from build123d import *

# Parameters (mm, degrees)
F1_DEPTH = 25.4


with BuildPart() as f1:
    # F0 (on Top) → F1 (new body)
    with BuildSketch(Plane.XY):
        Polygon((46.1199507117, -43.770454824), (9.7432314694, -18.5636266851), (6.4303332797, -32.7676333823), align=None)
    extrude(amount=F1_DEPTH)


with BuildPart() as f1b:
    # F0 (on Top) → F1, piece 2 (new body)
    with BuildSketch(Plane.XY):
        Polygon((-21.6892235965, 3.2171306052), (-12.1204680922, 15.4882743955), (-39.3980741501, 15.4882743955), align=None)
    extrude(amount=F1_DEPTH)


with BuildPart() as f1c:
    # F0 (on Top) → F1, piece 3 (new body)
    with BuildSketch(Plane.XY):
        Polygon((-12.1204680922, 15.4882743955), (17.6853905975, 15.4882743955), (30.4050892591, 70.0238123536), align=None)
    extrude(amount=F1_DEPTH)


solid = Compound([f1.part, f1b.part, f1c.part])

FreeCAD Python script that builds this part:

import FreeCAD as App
import Part
import Sketcher

V = App.Vector
Q = App.Units.Quantity


def add_polygon(sketch, points):
    """Adds a closed chain of lines whose ends are joined by coincident constraints."""
    first, n = sketch.GeometryCount, len(points)
    for a, b in zip(points, points[1:] + points[:1]):
        sketch.addGeometry(Part.LineSegment(App.Vector(*a, 0), App.Vector(*b, 0)), False)
    for i in range(n):
        sketch.addConstraint(Sketcher.Constraint("Coincident", first + i, 2, first + (i + 1) % n, 1))

doc = App.newDocument("Part")
body = doc.addObject("PartDesign::Body", "Body")

# Sketch on XY plane
sketch1 = body.newObject("Sketcher::SketchObject", "Sketch")
sketch1.AttachmentSupport = (doc.getObject("XY_Plane"), [""])
sketch1.MapMode = "FlatFace"
add_polygon(sketch1, [(46, -44), (10, -19), (6, -33)])  # lines 0-2
sketch1.addConstraint([
    Sketcher.Constraint("Distance", 2, 41.1865),
    Sketcher.Constraint("DistanceX", 1, 2, 0, 2, 3.312898),
    Sketcher.Constraint("DistanceX", -1, 1, 0, 2, 9.743231),
    Sketcher.Constraint("DistanceX", -1, 1, 2, 2, 46.119951),
    Sketcher.Constraint("DistanceY", 2, 2, 0, 2, 25.206828),
    Sketcher.Constraint("DistanceY", 0, 2, -1, 1, 18.563627),
])
pad1 = body.newObject("PartDesign::Pad", "Pad")
pad1.Profile = sketch1
pad1.Length = Q("1 in")
body2 = doc.addObject("PartDesign::Body", "Body001")

# Sketch on XY plane
sketch2 = body2.newObject("Sketcher::SketchObject", "Sketch001")
sketch2.AttachmentSupport = (doc.getObject("XY_Plane001"), [""])
sketch2.MapMode = "FlatFace"
add_polygon(sketch2, [(-22, 3), (-12, 15), (-39, 15)])  # lines 0-2
sketch2.addConstraint([
    Sketcher.Constraint("Horizontal", 1),
    Sketcher.Constraint("Distance", 2, 21.544938),
    Sketcher.Constraint("DistanceX", 1, 2, 1, 1, 27.277606),
    Sketcher.Constraint("DistanceX", 0, 2, -1, 1, 12.120468),
    Sketcher.Constraint("DistanceY", -1, 1, 2, 2, 3.217131),
    Sketcher.Constraint("DistanceX", 1, 2, 2, 2, 17.708851),
])
pad2 = body2.newObject("PartDesign::Pad", "Pad001")
pad2.Profile = sketch2
pad2.Length = Q("1 in")
body3 = doc.addObject("PartDesign::Body", "Body002")

# Sketch on XY plane
sketch3 = body3.newObject("Sketcher::SketchObject", "Sketch002")
sketch3.AttachmentSupport = (doc.getObject("XY_Plane002"), [""])
sketch3.MapMode = "FlatFace"
add_polygon(sketch3, [(-12, 15), (18, 15), (30, 70)])  # lines 0-2
sketch3.addConstraint([
    Sketcher.Constraint("Horizontal", 0),
    Sketcher.Constraint("DistanceX", 0, 1, 0, 2, 29.805859),
    Sketcher.Constraint("DistanceX", 0, 2, 1, 2, 12.719699),
    Sketcher.Constraint("Distance", 2, 69.155968),
    Sketcher.Constraint("DistanceX", -1, 1, 0, 2, 17.685391),
    Sketcher.Constraint("DistanceY", -1, 1, 0, 2, 15.488274),
])
pad3 = body3.newObject("PartDesign::Pad", "Pad002")
pad3.Profile = sketch3
pad3.Length = Q("1 in")

doc.recompute()
